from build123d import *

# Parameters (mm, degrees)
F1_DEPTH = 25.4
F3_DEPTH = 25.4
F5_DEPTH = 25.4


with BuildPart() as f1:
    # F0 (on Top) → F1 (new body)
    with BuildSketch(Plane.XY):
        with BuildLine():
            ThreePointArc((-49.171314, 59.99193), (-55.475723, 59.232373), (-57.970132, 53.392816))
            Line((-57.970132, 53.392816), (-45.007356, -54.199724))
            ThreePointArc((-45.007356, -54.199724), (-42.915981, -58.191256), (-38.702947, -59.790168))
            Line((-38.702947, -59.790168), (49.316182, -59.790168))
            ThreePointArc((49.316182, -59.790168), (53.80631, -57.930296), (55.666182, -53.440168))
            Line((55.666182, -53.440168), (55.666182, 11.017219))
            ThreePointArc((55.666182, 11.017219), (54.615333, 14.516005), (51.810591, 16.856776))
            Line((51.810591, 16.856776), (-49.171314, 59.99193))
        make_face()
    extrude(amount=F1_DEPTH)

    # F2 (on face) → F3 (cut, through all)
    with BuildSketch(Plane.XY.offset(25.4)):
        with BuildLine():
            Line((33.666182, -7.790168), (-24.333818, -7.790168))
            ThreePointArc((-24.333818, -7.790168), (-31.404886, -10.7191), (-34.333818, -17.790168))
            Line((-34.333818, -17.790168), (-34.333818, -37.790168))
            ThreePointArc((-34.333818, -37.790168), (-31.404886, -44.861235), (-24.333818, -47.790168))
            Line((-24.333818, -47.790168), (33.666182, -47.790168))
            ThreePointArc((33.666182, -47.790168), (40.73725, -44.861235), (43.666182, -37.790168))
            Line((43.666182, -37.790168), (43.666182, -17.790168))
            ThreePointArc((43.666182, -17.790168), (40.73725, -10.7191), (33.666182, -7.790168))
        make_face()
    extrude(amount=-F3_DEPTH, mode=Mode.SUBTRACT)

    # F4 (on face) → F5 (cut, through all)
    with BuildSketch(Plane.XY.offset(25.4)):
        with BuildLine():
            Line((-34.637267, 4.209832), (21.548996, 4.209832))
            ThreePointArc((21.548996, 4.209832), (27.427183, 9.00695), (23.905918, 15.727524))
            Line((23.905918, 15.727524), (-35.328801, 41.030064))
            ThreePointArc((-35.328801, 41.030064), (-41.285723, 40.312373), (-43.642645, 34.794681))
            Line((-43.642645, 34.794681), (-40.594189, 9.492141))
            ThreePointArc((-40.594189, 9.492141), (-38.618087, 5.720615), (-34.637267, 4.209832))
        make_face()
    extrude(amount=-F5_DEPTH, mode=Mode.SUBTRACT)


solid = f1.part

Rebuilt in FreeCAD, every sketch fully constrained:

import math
import FreeCAD as App
import Part
import Sketcher

V = App.Vector
Q = App.Units.Quantity

doc = App.newDocument("Part")
body = doc.addObject("PartDesign::Body", "Body")

sketch1 = doc.addObject("Sketcher::SketchObject", "Sketch")
body.addObject(sketch1)
sketch1.AttachmentSupport = (doc.XY_Plane, [""])
sketch1.MapMode = "FlatFace"
sketch1.addGeometry([
    Part.ArcOfCircle(Part.Circle(V(-52, 54, 0), V(0, 0, 1), 6), math.radians(67), math.radians(187)),
    Part.LineSegment(V(-58, 53, 0), V(-45, -54, 0)),
    Part.ArcOfCircle(Part.Circle(V(-39, -53, 0), V(0, 0, 1), 6), math.radians(-173), math.radians(-90)),
    Part.LineSegment(V(-39, -60, 0), V(49, -60, 0)),
    Part.ArcOfCircle(Part.Circle(V(49, -53, 0), V(0, 0, 1), 6), math.radians(-90), math.radians(0)),
    Part.LineSegment(V(56, -53, 0), V(56, 11, 0)),
    Part.ArcOfCircle(Part.Circle(V(49, 11, 0), V(0, 0, 1), 6), math.radians(0), math.radians(67)),
    Part.LineSegment(V(52, 17, 0), V(-49, 60, 0)),
], False)
sketch1.addConstraint([
    Sketcher.Constraint("Tangent", 0, 2, 1, 1),
    Sketcher.Constraint("Tangent", 1, 2, 2, 1),
    Sketcher.Constraint("Tangent", 2, 2, 3, 1),
    Sketcher.Constraint("Tangent", 3, 2, 4, 1),
    Sketcher.Constraint("Tangent", 4, 2, 5, 1),
    Sketcher.Constraint("Tangent", 5, 2, 6, 1),
    Sketcher.Constraint("Tangent", 6, 2, 7, 1),
    Sketcher.Constraint("Tangent", 7, 2, 0, 1),
    Sketcher.Constraint("Horizontal", 3),
    Sketcher.Constraint("Vertical", 5),
    Sketcher.Constraint("Equal", 0, 2),
    Sketcher.Constraint("Equal", 2, 4),
    Sketcher.Constraint("Equal", 4, 6),
    Sketcher.Constraint("Radius", 0, Q("6.35 mm")),
    Sketcher.Constraint("DistanceX", 3, 1, 3, 2, Q("88.019129 mm")),
    Sketcher.Constraint("DistanceY", 5, 1, 5, 2, Q("64.457387 mm")),
    Sketcher.Constraint("DistanceX", -1, 1, 4, 3, Q("49.316182 mm")),
    Sketcher.Constraint("DistanceY", -1, 1, 6, 3, Q("11.01722 mm")),
    Sketcher.Constraint("DistanceX", 0, 2, -1, 1, Q("57.970132 mm")),
    Sketcher.Constraint("DistanceX", -1, 1, 6, 2, Q("51.810591 mm")),
])
pad1 = doc.addObject("PartDesign::Pad", "Pad")
body.addObject(pad1)
pad1.Profile = sketch1
pad1.Length = 25.4

sketch2 = doc.addObject("Sketcher::SketchObject", "Sketch001")
body.addObject(sketch2)
sketch2.AttachmentSupport = (doc.XY_Plane, [""])
sketch2.MapMode = "FlatFace"
sketch2.AttachmentOffset = App.Placement(V(0, 0, 25.4), App.Rotation())
sketch2.addGeometry([
    Part.LineSegment(V(34, -8, 0), V(-24, -8, 0)),
    Part.ArcOfCircle(Part.Circle(V(-24, -18, 0), V(0, 0, 1), 10), math.radians(90), math.radians(180)),
    Part.LineSegment(V(-34, -18, 0), V(-34, -38, 0)),
    Part.ArcOfCircle(Part.Circle(V(-24, -38, 0), V(0, 0, 1), 10), math.radians(-180), math.radians(-90)),
    Part.LineSegment(V(-24, -48, 0), V(34, -48, 0)),
    Part.ArcOfCircle(Part.Circle(V(34, -38, 0), V(0, 0, 1), 10), math.radians(-90), math.radians(0)),
    Part.LineSegment(V(44, -38, 0), V(44, -18, 0)),
    Part.ArcOfCircle(Part.Circle(V(34, -18, 0), V(0, 0, 1), 10), math.radians(0), math.radians(90)),
], False)
sketch2.addConstraint([
    Sketcher.Constraint("Tangent", 0, 2, 1, 1),
    Sketcher.Constraint("Tangent", 1, 2, 2, 1),
    Sketcher.Constraint("Tangent", 2, 2, 3, 1),
    Sketcher.Constraint("Tangent", 3, 2, 4, 1),
    Sketcher.Constraint("Tangent", 4, 2, 5, 1),
    Sketcher.Constraint("Tangent", 5, 2, 6, 1),
    Sketcher.Constraint("Tangent", 6, 2, 7, 1),
    Sketcher.Constraint("Tangent", 7, 2, 0, 1),
    Sketcher.Constraint("Horizontal", 0),
    Sketcher.Constraint("Vertical", 2),
    Sketcher.Constraint("Horizontal", 4),
    Sketcher.Constraint("Vertical", 6),
    Sketcher.Constraint("Equal", 1, 3),
    Sketcher.Constraint("Equal", 3, 5),
    Sketcher.Constraint("Equal", 5, 7),
    Sketcher.Constraint("Radius", 1, Q("9.999999 mm")),
    Sketcher.Constraint("DistanceX", 0, 2, 0, 1, Q("58 mm")),
    Sketcher.Constraint("DistanceY", 2, 2, 2, 1, Q("20 mm")),
    Sketcher.Constraint("DistanceX", 1, 3, -1, 1, Q("24.333819 mm")),
    Sketcher.Constraint("DistanceY", 0, 2, -1, 1, Q("7.790168 mm")),
])
pocket1 = doc.addObject("PartDesign::Pocket", "Pocket")
body.addObject(pocket1)
pocket1.Profile = sketch2
pocket1.Type = "ThroughAll"

sketch3 = doc.addObject("Sketcher::SketchObject", "Sketch002")
body.addObject(sketch3)
sketch3.AttachmentSupport = (doc.XY_Plane, [""])
sketch3.MapMode = "FlatFace"
sketch3.AttachmentOffset = App.Placement(V(0, 0, 25.4), App.Rotation())
sketch3.addGeometry([
    Part.LineSegment(V(-35, 4, 0), V(22, 4, 0)),
    Part.ArcOfCircle(Part.Circle(V(22, 10, 0), V(0, 0, 1), 6), math.radians(-90), math.radians(67)),
    Part.LineSegment(V(24, 16, 0), V(-35, 41, 0)),
    Part.ArcOfCircle(Part.Circle(V(-38, 36, 0), V(0, 0, 1), 6), math.radians(67), math.radians(187)),
    Part.LineSegment(V(-44, 35, 0), V(-41, 9, 0)),
    Part.ArcOfCircle(Part.Circle(V(-35, 10, 0), V(0, 0, 1), 6), math.radians(-173), math.radians(-90)),
], False)
sketch3.addConstraint([
    Sketcher.Constraint("Tangent", 0, 2, 1, 1),
    Sketcher.Constraint("Tangent", 1, 2, 2, 1),
    Sketcher.Constraint("Tangent", 2, 2, 3, 1),
    Sketcher.Constraint("Tangent", 3, 2, 4, 1),
    Sketcher.Constraint("Tangent", 4, 2, 5, 1),
    Sketcher.Constraint("Tangent", 5, 2, 0, 1),
    Sketcher.Constraint("Horizontal", 0),
    Sketcher.Constraint("Equal", 1, 3),
    Sketcher.Constraint("Equal", 3, 5),
    Sketcher.Constraint("Radius", 1, Q("6 mm")),
    Sketcher.Constraint("DistanceX", 2, 2, -1, 1, Q("35.328801 mm")),
    Sketcher.Constraint("DistanceX", 0, 1, 0, 2, Q("56.186263 mm")),
    Sketcher.Constraint("DistanceY", -1, 1, 0, 2, Q("4.209832 mm")),
    Sketcher.Constraint("DistanceY", -1, 1, 3, 2, Q("34.794681 mm")),
    Sketcher.Constraint("DistanceX", 4, 2, -1, 1, Q("40.594189 mm")),
])
pocket2 = doc.addObject("PartDesign::Pocket", "Pocket001")
body.addObject(pocket2)
pocket2.Profile = sketch3
pocket2.Type = "ThroughAll"

doc.recompute()
